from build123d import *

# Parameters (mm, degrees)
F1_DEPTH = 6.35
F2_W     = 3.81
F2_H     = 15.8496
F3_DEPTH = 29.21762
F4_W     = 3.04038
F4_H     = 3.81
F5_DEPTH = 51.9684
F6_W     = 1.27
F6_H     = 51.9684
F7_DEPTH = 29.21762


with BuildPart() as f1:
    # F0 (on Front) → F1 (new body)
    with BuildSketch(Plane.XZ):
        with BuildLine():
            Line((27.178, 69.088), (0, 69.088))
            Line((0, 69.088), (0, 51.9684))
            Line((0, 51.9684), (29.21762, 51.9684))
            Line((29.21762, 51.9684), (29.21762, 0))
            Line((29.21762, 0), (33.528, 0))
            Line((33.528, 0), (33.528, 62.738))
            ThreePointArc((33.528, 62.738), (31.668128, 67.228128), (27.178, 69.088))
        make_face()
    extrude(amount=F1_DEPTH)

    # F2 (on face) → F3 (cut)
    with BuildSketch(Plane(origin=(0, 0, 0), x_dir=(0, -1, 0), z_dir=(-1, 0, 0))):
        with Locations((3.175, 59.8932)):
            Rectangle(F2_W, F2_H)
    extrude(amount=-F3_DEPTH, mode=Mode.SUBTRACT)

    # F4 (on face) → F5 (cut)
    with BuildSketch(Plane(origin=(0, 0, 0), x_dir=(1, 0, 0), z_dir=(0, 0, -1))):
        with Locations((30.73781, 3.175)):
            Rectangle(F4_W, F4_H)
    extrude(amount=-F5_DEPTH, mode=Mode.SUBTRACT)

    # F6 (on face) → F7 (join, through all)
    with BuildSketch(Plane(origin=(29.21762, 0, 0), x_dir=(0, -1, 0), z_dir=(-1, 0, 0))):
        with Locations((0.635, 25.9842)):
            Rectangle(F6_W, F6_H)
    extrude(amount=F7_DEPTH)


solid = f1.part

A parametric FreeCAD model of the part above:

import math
import FreeCAD as App
import Part
import Sketcher
from FreeCAD import Vector
Q = App.Units.Quantity


def add_polygon(sketch, points):
    """Adds a closed chain of lines whose ends are joined by coincident constraints."""
    first, n = sketch.GeometryCount, len(points)
    for a, b in zip(points, points[1:] + points[:1]):
        sketch.addGeometry(Part.LineSegment(App.Vector(*a, 0), App.Vector(*b, 0)), False)
    for i in range(n):
        sketch.addConstraint(Sketcher.Constraint("Coincident", first + i, 2, first + (i + 1) % n, 1))

doc = App.newDocument("Part")
params = doc.addObject("Spreadsheet::Sheet", "Params")
for row, (alias, value) in enumerate([
    ("sketch1_radius", "0.25 in"),
    ("sketch1_width", "1.07 in"),
    ("sketch1_height", "2.47 in"),
    ("sketch1_height2", "0.674 in"),
    ("pad1_length", "0.25 in"),
    ("sketch2_width", "0.15 in"),
    ("sketch2_height", "0.624 in"),
    ("pocket1_length", "1.1503 in"),
    ("sketch3_height", "0.15 in"),
    ("pocket2_length", "2.046 in"),
    ("sketch4_width", "0.05 in"),
    ("sketch4_height", "2.046 in"),
    ("pad2_length", "1.1503 in"),
], start=1):
    params.set(f"A{row}", alias)
    params.set(f"B{row}", "=" + value)
    params.setAlias(f"B{row}", alias)

body = doc.addObject("PartDesign::Body", "Body")

# Sketch on XZ plane
sketch1 = body.newObject("Sketcher::SketchObject", "Sketch")
sketch1.AttachmentSupport = (doc.getObject("XZ_Plane"), [""])
sketch1.MapMode = "FlatFace"
sketch1.addGeometry(Part.LineSegment(Vector(27.2, 69.1, 0), Vector(0, 69.1, 0)), False)
sketch1.addGeometry(Part.LineSegment(Vector(0, 69.1, 0), Vector(0, 52, 0)), False)
sketch1.addGeometry(Part.LineSegment(Vector(0, 52, 0), Vector(29.2, 52, 0)), False)
sketch1.addGeometry(Part.LineSegment(Vector(29.2, 52, 0), Vector(29.2, 0, 0)), False)
sketch1.addGeometry(Part.LineSegment(Vector(29.2, 0, 0), Vector(33.5, 0, 0)), False)
sketch1.addGeometry(Part.LineSegment(Vector(33.5, 0, 0), Vector(33.5, 62.7, 0)), False)
sketch1.addGeometry(Part.ArcOfCircle(Part.Circle(Vector(27.2, 62.7, 0), Vector(0, 0, 1), 6.4), math.radians(0), math.radians(90)), False)
sketch1.addConstraint(Sketcher.Constraint("Coincident", 0, 2, 1, 1))
sketch1.addConstraint(Sketcher.Constraint("Coincident", 1, 2, 2, 1))
sketch1.addConstraint(Sketcher.Constraint("Coincident", 2, 2, 3, 1))
sketch1.addConstraint(Sketcher.Constraint("Coincident", 3, 2, 4, 1))
sketch1.addConstraint(Sketcher.Constraint("Coincident", 4, 2, 5, 1))
sketch1.addConstraint(Sketcher.Constraint("Tangent", 5, 2, 6, 1))
sketch1.addConstraint(Sketcher.Constraint("Tangent", 6, 2, 0, 1))
sketch1.addConstraint(Sketcher.Constraint("Horizontal", 0))
sketch1.addConstraint(Sketcher.Constraint("Vertical", 1))
sketch1.addConstraint(Sketcher.Constraint("Horizontal", 2))
sketch1.addConstraint(Sketcher.Constraint("Vertical", 3))
sketch1.addConstraint(Sketcher.Constraint("Horizontal", 4))
sketch1.addConstraint(Sketcher.Constraint("Vertical", 5))
sketch1.addConstraint(Sketcher.Constraint("PointOnObject", 0, 2, -2))
sketch1.addConstraint(Sketcher.Constraint("PointOnObject", 3, 2, -1))
sketch1.addConstraint(Sketcher.Constraint("Radius", 6, Q("0.25 in")))
sketch1.addConstraint(Sketcher.Constraint("DistanceX", 0, 2, 0, 1, Q("1.07 in")))
sketch1.addConstraint(Sketcher.Constraint("DistanceY", 5, 1, 5, 2, Q("2.47 in")))
sketch1.addConstraint(Sketcher.Constraint("DistanceY", 1, 2, 1, 1, Q("0.674 in")))
sketch1.addConstraint(Sketcher.Constraint("DistanceX", 2, 1, 2, 2, Q("1.1503 in")))
sketch1.setExpression("Constraints[15]", "Params.sketch1_radius")
sketch1.setExpression("Constraints[16]", "Params.sketch1_width")
sketch1.setExpression("Constraints[17]", "Params.sketch1_height")
sketch1.setExpression("Constraints[18]", "Params.sketch1_height2")
pad1 = body.newObject("PartDesign::Pad", "Pad")
pad1.Profile = sketch1
pad1.setExpression("Length", "Params.pad1_length")

# Sketch on YZ plane
sketch2 = body.newObject("Sketcher::SketchObject", "Sketch001")
sketch2.AttachmentSupport = (doc.getObject("YZ_Plane"), [""])
sketch2.MapMode = "FlatFace"
add_polygon(sketch2, [(-1.3, 67.8), (-1.3, 52), (-5.1, 52), (-5.1, 67.8)])  # lines 0-3
sketch2.addConstraint(Sketcher.Constraint("Vertical", 0))
sketch2.addConstraint(Sketcher.Constraint("Horizontal", 1))
sketch2.addConstraint(Sketcher.Constraint("Vertical", 2))
sketch2.addConstraint(Sketcher.Constraint("Horizontal", 3))
sketch2.addConstraint(Sketcher.Constraint("DistanceX", 1, 2, 1, 1, Q("0.15 in")))
sketch2.addConstraint(Sketcher.Constraint("DistanceX", 1, 2, -1, 1, Q("0.2 in")))
sketch2.addConstraint(Sketcher.Constraint("DistanceY", 0, 2, 0, 1, Q("0.624 in")))
sketch2.addConstraint(Sketcher.Constraint("DistanceY", -1, 1, 2, 2, Q("2.67 in")))
sketch2.setExpression("Constraints[8]", "Params.sketch2_width")
sketch2.setExpression("Constraints[10]", "Params.sketch2_height")
pocket1 = body.newObject("PartDesign::Pocket", "Pocket")
pocket1.Profile = sketch2
pocket1.setExpression("Length", "Params.pocket1_length")
pocket1.Reversed = True

# Sketch on XY plane
sketch3 = body.newObject("Sketcher::SketchObject", "Sketch002")
sketch3.AttachmentSupport = (doc.getObject("XY_Plane"), [""])
sketch3.MapMode = "FlatFace"
add_polygon(sketch3, [(29.2, -5.1), (29.2, -1.3), (32.3, -1.3), (32.3, -5.1)])  # lines 0-3
sketch3.addConstraint(Sketcher.Constraint("Vertical", 0))
sketch3.addConstraint(Sketcher.Constraint("Horizontal", 1))
sketch3.addConstraint(Sketcher.Constraint("Vertical", 2))
sketch3.addConstraint(Sketcher.Constraint("Horizontal", 3))
sketch3.addConstraint(Sketcher.Constraint("DistanceY", 0, 1, 0, 2, Q("0.15 in")))
sketch3.addConstraint(Sketcher.Constraint("DistanceY", 2, 2, -1, 1, Q("0.2 in")))
sketch3.addConstraint(Sketcher.Constraint("DistanceX", -1, 1, 1, 2, Q("1.27 in")))
sketch3.addConstraint(Sketcher.Constraint("DistanceX", 1, 1, 1, 2, Q("0.1197 in")))
sketch3.setExpression("Constraints[8]", "Params.sketch3_height")
pocket2 = body.newObject("PartDesign::Pocket", "Pocket001")
pocket2.Profile = sketch3
pocket2.setExpression("Length", "Params.pocket2_length")
pocket2.Reversed = True

# Sketch on YZ plane
sketch4 = body.newObject("Sketcher::SketchObject", "Sketch003")
sketch4.AttachmentSupport = (doc.getObject("YZ_Plane"), [""])
sketch4.MapMode = "FlatFace"
sketch4.AttachmentOffset = App.Placement(Vector(0, 0, 1.1503 * 25.4), App.Rotation())
add_polygon(sketch4, [(0, 52), (0, 0), (-1.3, 0), (-1.3, 52)])  # lines 0-3
sketch4.addConstraint(Sketcher.Constraint("Vertical", 0))
sketch4.addConstraint(Sketcher.Constraint("Horizontal", 1))
sketch4.addConstraint(Sketcher.Constraint("Vertical", 2))
sketch4.addConstraint(Sketcher.Constraint("Horizontal", 3))
sketch4.addConstraint(Sketcher.Constraint("Coincident", 0, 2, -1, 1))
sketch4.addConstraint(Sketcher.Constraint("DistanceX", 1, 2, 1, 1, Q("0.05 in")))
sketch4.addConstraint(Sketcher.Constraint("DistanceY", 0, 2, 0, 1, Q("2.046 in")))
sketch4.setExpression("Constraints[9]", "Params.sketch4_width")
sketch4.setExpression("Constraints[10]", "Params.sketch4_height")
pad2 = body.newObject("PartDesign::Pad", "Pad001")
pad2.Profile = sketch4
pad2.setExpression("Length", "Params.pad2_length")
pad2.Reversed = True

doc.recompute()
